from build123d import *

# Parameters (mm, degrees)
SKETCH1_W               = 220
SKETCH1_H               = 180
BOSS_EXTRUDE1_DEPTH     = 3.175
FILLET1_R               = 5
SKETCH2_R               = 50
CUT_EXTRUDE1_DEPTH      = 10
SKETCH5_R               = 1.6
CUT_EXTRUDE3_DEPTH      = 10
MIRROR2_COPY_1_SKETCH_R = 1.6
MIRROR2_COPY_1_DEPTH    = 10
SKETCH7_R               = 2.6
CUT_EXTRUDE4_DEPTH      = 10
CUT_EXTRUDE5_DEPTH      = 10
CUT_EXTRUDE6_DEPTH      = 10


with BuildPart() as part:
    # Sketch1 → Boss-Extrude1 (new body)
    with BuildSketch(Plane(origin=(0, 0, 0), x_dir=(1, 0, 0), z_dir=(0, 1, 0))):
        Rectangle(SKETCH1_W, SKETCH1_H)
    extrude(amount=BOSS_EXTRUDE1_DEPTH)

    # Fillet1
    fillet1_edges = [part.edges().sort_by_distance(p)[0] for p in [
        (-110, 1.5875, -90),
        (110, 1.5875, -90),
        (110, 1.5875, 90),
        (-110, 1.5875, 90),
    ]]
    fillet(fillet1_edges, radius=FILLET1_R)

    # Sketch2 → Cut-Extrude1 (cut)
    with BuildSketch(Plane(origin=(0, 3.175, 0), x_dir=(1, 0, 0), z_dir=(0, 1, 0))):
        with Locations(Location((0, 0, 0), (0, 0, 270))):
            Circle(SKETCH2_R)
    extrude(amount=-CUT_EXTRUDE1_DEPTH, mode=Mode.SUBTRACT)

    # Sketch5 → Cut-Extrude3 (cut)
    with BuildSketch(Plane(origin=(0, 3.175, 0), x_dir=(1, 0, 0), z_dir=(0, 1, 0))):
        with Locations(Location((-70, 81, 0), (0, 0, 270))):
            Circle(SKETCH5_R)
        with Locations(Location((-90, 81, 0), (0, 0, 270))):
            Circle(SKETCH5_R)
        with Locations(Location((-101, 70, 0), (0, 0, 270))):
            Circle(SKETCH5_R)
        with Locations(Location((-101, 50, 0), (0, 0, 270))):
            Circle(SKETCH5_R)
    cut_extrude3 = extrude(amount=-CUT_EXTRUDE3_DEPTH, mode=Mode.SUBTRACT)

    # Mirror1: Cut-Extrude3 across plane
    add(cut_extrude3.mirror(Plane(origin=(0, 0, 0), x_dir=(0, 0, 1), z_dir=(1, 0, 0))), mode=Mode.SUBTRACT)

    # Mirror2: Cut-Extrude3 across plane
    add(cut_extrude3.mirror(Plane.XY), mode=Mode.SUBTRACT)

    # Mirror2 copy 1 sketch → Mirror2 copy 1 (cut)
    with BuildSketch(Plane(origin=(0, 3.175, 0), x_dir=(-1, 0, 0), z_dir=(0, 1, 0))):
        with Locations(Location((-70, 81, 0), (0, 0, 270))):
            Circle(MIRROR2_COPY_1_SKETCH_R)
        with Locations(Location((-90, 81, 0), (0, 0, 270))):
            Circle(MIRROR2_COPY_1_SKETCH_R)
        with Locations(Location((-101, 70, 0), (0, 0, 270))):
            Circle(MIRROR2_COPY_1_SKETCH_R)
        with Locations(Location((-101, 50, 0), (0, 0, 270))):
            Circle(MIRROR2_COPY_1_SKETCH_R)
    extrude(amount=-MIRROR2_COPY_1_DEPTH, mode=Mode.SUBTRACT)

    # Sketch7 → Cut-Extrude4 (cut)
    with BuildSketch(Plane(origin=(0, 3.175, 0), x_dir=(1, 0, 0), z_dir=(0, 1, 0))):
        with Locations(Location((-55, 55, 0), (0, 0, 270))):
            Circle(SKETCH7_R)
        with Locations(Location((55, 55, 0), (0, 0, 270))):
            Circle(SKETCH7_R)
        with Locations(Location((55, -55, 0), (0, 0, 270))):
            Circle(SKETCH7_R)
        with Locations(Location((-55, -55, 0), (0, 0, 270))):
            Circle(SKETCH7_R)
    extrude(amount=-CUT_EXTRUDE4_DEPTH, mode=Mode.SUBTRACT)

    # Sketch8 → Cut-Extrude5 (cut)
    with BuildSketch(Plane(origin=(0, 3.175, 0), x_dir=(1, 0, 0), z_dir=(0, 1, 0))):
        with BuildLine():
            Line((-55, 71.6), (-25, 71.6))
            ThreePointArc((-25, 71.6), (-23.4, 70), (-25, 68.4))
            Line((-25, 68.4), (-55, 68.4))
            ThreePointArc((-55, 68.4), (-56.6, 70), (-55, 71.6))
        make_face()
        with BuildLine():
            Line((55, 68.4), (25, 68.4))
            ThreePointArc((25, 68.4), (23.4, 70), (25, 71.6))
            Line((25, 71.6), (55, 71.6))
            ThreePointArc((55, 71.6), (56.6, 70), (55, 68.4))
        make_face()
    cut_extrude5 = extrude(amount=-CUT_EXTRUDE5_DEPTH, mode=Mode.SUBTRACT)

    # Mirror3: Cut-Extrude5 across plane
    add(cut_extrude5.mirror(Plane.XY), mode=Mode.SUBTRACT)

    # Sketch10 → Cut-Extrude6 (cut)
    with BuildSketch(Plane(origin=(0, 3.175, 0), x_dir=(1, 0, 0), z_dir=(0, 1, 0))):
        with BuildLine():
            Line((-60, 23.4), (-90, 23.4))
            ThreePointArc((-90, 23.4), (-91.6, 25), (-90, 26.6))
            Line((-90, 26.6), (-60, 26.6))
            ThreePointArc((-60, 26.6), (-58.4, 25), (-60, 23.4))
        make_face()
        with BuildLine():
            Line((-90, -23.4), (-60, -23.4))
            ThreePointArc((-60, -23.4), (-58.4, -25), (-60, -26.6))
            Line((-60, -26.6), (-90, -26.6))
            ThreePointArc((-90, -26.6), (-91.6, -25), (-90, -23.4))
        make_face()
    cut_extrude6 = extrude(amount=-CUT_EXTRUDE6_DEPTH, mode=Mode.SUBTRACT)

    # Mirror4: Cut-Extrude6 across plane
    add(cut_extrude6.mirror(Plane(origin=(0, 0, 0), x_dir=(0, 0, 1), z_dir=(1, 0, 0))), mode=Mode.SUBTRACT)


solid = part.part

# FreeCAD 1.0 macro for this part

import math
import FreeCAD as App
import Part
import Sketcher

V = App.Vector


def edges_at(feature, points):
    """Names of the edges that pass closest to the given points."""
    edges = feature.Shape.Edges
    near = lambda p: min(range(len(edges)), key=lambda i: edges[i].distToShape(Part.Vertex(*p))[0])
    return sorted({f"Edge{near(p) + 1}" for p in points})

doc = App.newDocument("Part")
body = doc.addObject("PartDesign::Body", "Body")

# Sketch on XZ plane
sketch1 = doc.addObject("Sketcher::SketchObject", "Sketch")
body.addObject(sketch1)
sketch1.AttachmentSupport = (doc.XZ_Plane, [""])
sketch1.MapMode = "FlatFace"
sketch1.addGeometry(Part.LineSegment(V(-110, -90, 0), V(-110, 90, 0)), False)
sketch1.addGeometry(Part.LineSegment(V(-110, 90, 0), V(110, 90, 0)), False)
sketch1.addGeometry(Part.LineSegment(V(110, 90, 0), V(110, -90, 0)), False)
sketch1.addGeometry(Part.LineSegment(V(110, -90, 0), V(-110, -90, 0)), False)
sketch1.addConstraint(Sketcher.Constraint("Coincident", 0, 2, 1, 1))
sketch1.addConstraint(Sketcher.Constraint("Coincident", 1, 2, 2, 1))
sketch1.addConstraint(Sketcher.Constraint("Coincident", 2, 2, 3, 1))
sketch1.addConstraint(Sketcher.Constraint("Coincident", 3, 2, 0, 1))
sketch1.addConstraint(Sketcher.Constraint("Vertical", 0))
sketch1.addConstraint(Sketcher.Constraint("Horizontal", 1))
sketch1.addConstraint(Sketcher.Constraint("Vertical", 2))
sketch1.addConstraint(Sketcher.Constraint("Horizontal", 3))
sketch1.addConstraint(Sketcher.Constraint("Symmetric", 0, 2, 2, 2, -1, 1))
sketch1.addConstraint(Sketcher.Constraint("DistanceX", 1, 1, 1, 2, 220.0))
sketch1.addConstraint(Sketcher.Constraint("DistanceY", 0, 1, 0, 2, 180.0))
pad1 = doc.addObject("PartDesign::Pad", "Pad")
body.addObject(pad1)
pad1.Profile = sketch1
pad1.Length = 3.175
pad1.Reversed = True
doc.recompute()

fillet = doc.addObject("PartDesign::Fillet", "Fillet")
body.addObject(fillet)
fillet.Base = (pad1, edges_at(pad1, [
    (-110, 1.587, -90),
    (110, 1.587, -90),
    (110, 1.587, 90),
    (-110, 1.587, 90),
]))
fillet.Radius = 5

# Sketch on XZ plane
sketch2 = doc.addObject("Sketcher::SketchObject", "Sketch001")
body.addObject(sketch2)
sketch2.AttachmentSupport = (doc.XZ_Plane, [""])
sketch2.MapMode = "FlatFace"
sketch2.AttachmentOffset = App.Placement(V(0, 0, -3.175), App.Rotation())
sketch2.addGeometry(Part.Circle(V(0, 0, 0), V(0, 0, 1), 50), False)
sketch2.addConstraint(Sketcher.Constraint("Coincident", 0, 3, -1, 1))
sketch2.addConstraint(Sketcher.Constraint("Diameter", 0, 100.0))
pocket1 = doc.addObject("PartDesign::Pocket", "Pocket")
body.addObject(pocket1)
pocket1.Profile = sketch2
pocket1.Length = 10
pocket1.Reversed = True

# Sketch on XZ plane
sketch3 = doc.addObject("Sketcher::SketchObject", "Sketch002")
body.addObject(sketch3)
sketch3.AttachmentSupport = (doc.XZ_Plane, [""])
sketch3.MapMode = "FlatFace"
sketch3.AttachmentOffset = App.Placement(V(0, 0, -3.175), App.Rotation())
sketch3.addGeometry(Part.Circle(V(-70, -81, 0), V(0, 0, 1), 1.6), False)
sketch3.addGeometry(Part.Circle(V(-90, -81, 0), V(0, 0, 1), 1.6), False)
sketch3.addGeometry(Part.Circle(V(-101, -70, 0), V(0, 0, 1), 1.6), False)
sketch3.addGeometry(Part.Circle(V(-101, -50, 0), V(0, 0, 1), 1.6), False)
sketch3.addConstraint(Sketcher.Constraint("Equal", 0, 1))
sketch3.addConstraint(Sketcher.Constraint("Equal", 1, 2))
sketch3.addConstraint(Sketcher.Constraint("Equal", 2, 3))
sketch3.addConstraint(Sketcher.Constraint("Horizontal", 0, 3, 1, 3))
sketch3.addConstraint(Sketcher.Constraint("Vertical", 2, 3, 3, 3))
sketch3.addConstraint(Sketcher.Constraint("Diameter", 0, 3.2))
sketch3.addConstraint(Sketcher.Constraint("DistanceX", 0, 3, -1, 1, 70.0))
sketch3.addConstraint(Sketcher.Constraint("DistanceY", 0, 3, -1, 1, 81.0))
sketch3.addConstraint(Sketcher.Constraint("DistanceX", 1, 3, -1, 1, 90.0))
sketch3.addConstraint(Sketcher.Constraint("DistanceX", 2, 3, -1, 1, 101.0))
sketch3.addConstraint(Sketcher.Constraint("DistanceY", 2, 3, -1, 1, 70.0))
sketch3.addConstraint(Sketcher.Constraint("DistanceY", 3, 3, -1, 1, 50.0))
pocket2 = doc.addObject("PartDesign::Pocket", "Pocket001")
body.addObject(pocket2)
pocket2.Profile = sketch3
pocket2.Length = 10
pocket2.Reversed = True
doc.recompute()

mirrored = doc.addObject("PartDesign::Mirrored", "Mirrored")
body.addObject(mirrored)
mirrored.Originals = [pocket2]
mirrored.MirrorPlane = (doc.YZ_Plane, [""])
body.Tip = mirrored
doc.recompute()

mirrored2 = doc.addObject("PartDesign::Mirrored", "Mirrored001")
body.addObject(mirrored2)
mirrored2.Originals = [pocket2]
mirrored2.MirrorPlane = (doc.XY_Plane, [""])
body.Tip = mirrored2

# Sketch on XZ plane
sketch4 = doc.addObject("Sketcher::SketchObject", "Sketch003")
body.addObject(sketch4)
sketch4.AttachmentSupport = (doc.XZ_Plane, [""])
sketch4.MapMode = "FlatFace"
sketch4.AttachmentOffset = App.Placement(V(0, 0, -3.175), App.Rotation())
sketch4.addGeometry(Part.Circle(V(70, 81, 0), V(0, 0, 1), 1.6), False)
sketch4.addGeometry(Part.Circle(V(90, 81, 0), V(0, 0, 1), 1.6), False)
sketch4.addGeometry(Part.Circle(V(101, 70, 0), V(0, 0, 1), 1.6), False)
sketch4.addGeometry(Part.Circle(V(101, 50, 0), V(0, 0, 1), 1.6), False)
sketch4.addConstraint(Sketcher.Constraint("Equal", 0, 1))
sketch4.addConstraint(Sketcher.Constraint("Equal", 1, 2))
sketch4.addConstraint(Sketcher.Constraint("Equal", 2, 3))
sketch4.addConstraint(Sketcher.Constraint("Horizontal", 0, 3, 1, 3))
sketch4.addConstraint(Sketcher.Constraint("Vertical", 2, 3, 3, 3))
sketch4.addConstraint(Sketcher.Constraint("Diameter", 0, 3.2))
sketch4.addConstraint(Sketcher.Constraint("DistanceX", -1, 1, 0, 3, 70.0))
sketch4.addConstraint(Sketcher.Constraint("DistanceY", -1, 1, 0, 3, 81.0))
sketch4.addConstraint(Sketcher.Constraint("DistanceX", -1, 1, 1, 3, 90.0))
sketch4.addConstraint(Sketcher.Constraint("DistanceX", -1, 1, 2, 3, 101.0))
sketch4.addConstraint(Sketcher.Constraint("DistanceY", -1, 1, 2, 3, 70.0))
sketch4.addConstraint(Sketcher.Constraint("DistanceY", -1, 1, 3, 3, 50.0))
pocket3 = doc.addObject("PartDesign::Pocket", "Pocket002")
body.addObject(pocket3)
pocket3.Profile = sketch4
pocket3.Length = 10
pocket3.Reversed = True

# Sketch on XZ plane
sketch5 = doc.addObject("Sketcher::SketchObject", "Sketch004")
body.addObject(sketch5)
sketch5.AttachmentSupport = (doc.XZ_Plane, [""])
sketch5.MapMode = "FlatFace"
sketch5.AttachmentOffset = App.Placement(V(0, 0, -3.175), App.Rotation())
sketch5.addGeometry(Part.Circle(V(-55, -55, 0), V(0, 0, 1), 2.6), False)
sketch5.addGeometry(Part.Circle(V(55, -55, 0), V(0, 0, 1), 2.6), False)
sketch5.addGeometry(Part.Circle(V(55, 55, 0), V(0, 0, 1), 2.6), False)
sketch5.addGeometry(Part.Circle(V(-55, 55, 0), V(0, 0, 1), 2.6), False)
sketch5.addConstraint(Sketcher.Constraint("Equal", 0, 1))
sketch5.addConstraint(Sketcher.Constraint("Equal", 1, 2))
sketch5.addConstraint(Sketcher.Constraint("Equal", 2, 3))
sketch5.addConstraint(Sketcher.Constraint("Symmetric", 0, 3, 2, 3, -1, 1))
sketch5.addConstraint(Sketcher.Constraint("Symmetric", 1, 3, 3, 3, -1, 1))
sketch5.addConstraint(Sketcher.Constraint("Symmetric", 0, 3, 1, 3, -2))
sketch5.addConstraint(Sketcher.Constraint("Diameter", 0, 5.2))
sketch5.addConstraint(Sketcher.Constraint("DistanceX", 0, 3, -1, 1, 55.0))
sketch5.addConstraint(Sketcher.Constraint("DistanceY", 0, 3, -1, 1, 55.0))
pocket4 = doc.addObject("PartDesign::Pocket", "Pocket003")
body.addObject(pocket4)
pocket4.Profile = sketch5
pocket4.Length = 10
pocket4.Reversed = True

# Sketch on XZ plane
sketch6 = doc.addObject("Sketcher::SketchObject", "Sketch005")
body.addObject(sketch6)
sketch6.AttachmentSupport = (doc.XZ_Plane, [""])
sketch6.MapMode = "FlatFace"
sketch6.AttachmentOffset = App.Placement(V(0, 0, -3.175), App.Rotation())
sketch6.addGeometry(Part.LineSegment(V(-25, -71.6, 0), V(-55, -71.6, 0)), False)
sketch6.addGeometry(Part.ArcOfCircle(Part.Circle(V(-55, -70, 0), V(0, 0, 1), 1.6), math.radians(90), math.radians(270)), False)
sketch6.addGeometry(Part.LineSegment(V(-55, -68.4, 0), V(-25, -68.4, 0)), False)
sketch6.addGeometry(Part.ArcOfCircle(Part.Circle(V(-25, -70, 0), V(0, 0, 1), 1.6), math.radians(-90), math.radians(90)), False)
sketch6.addGeometry(Part.LineSegment(V(25, -68.4, 0), V(55, -68.4, 0)), False)
sketch6.addGeometry(Part.ArcOfCircle(Part.Circle(V(55, -70, 0), V(0, 0, 1), 1.6), math.radians(-90), math.radians(90)), False)
sketch6.addGeometry(Part.LineSegment(V(55, -71.6, 0), V(25, -71.6, 0)), False)
sketch6.addGeometry(Part.ArcOfCircle(Part.Circle(V(25, -70, 0), V(0, 0, 1), 1.6), math.radians(90), math.radians(270)), False)
sketch6.addConstraint(Sketcher.Constraint("Tangent", 0, 2, 1, 2))
sketch6.addConstraint(Sketcher.Constraint("Tangent", 1, 1, 2, 1))
sketch6.addConstraint(Sketcher.Constraint("Tangent", 2, 2, 3, 2))
sketch6.addConstraint(Sketcher.Constraint("Tangent", 3, 1, 0, 1))
sketch6.addConstraint(Sketcher.Constraint("Tangent", 4, 2, 5, 2))
sketch6.addConstraint(Sketcher.Constraint("Tangent", 5, 1, 6, 1))
sketch6.addConstraint(Sketcher.Constraint("Tangent", 6, 2, 7, 2))
sketch6.addConstraint(Sketcher.Constraint("Tangent", 7, 1, 4, 1))
sketch6.addConstraint(Sketcher.Constraint("Horizontal", 0))
sketch6.addConstraint(Sketcher.Constraint("Horizontal", 2))
sketch6.addConstraint(Sketcher.Constraint("Horizontal", 4))
sketch6.addConstraint(Sketcher.Constraint("Horizontal", 6))
sketch6.addConstraint(Sketcher.Constraint("Equal", 3, 5))
sketch6.addConstraint(Sketcher.Constraint("Symmetric", 1, 3, 5, 3, -2))
sketch6.addConstraint(Sketcher.Constraint("Equal", 2, 4))
sketch6.addConstraint(Sketcher.Constraint("Radius", 1, 1.6))
sketch6.addConstraint(Sketcher.Constraint("DistanceX", 0, 2, 0, 1, 30.0))
sketch6.addConstraint(Sketcher.Constraint("DistanceX", 1, 3, -1, 1, 55.0))
sketch6.addConstraint(Sketcher.Constraint("DistanceY", 1, 3, -1, 1, 70.0))
pocket5 = doc.addObject("PartDesign::Pocket", "Pocket004")
body.addObject(pocket5)
pocket5.Profile = sketch6
pocket5.Length = 10
pocket5.Reversed = True
doc.recompute()

mirrored3 = doc.addObject("PartDesign::Mirrored", "Mirrored002")
body.addObject(mirrored3)
mirrored3.Originals = [pocket5]
mirrored3.MirrorPlane = (doc.XY_Plane, [""])
body.Tip = mirrored3

# Sketch on XZ plane
sketch7 = doc.addObject("Sketcher::SketchObject", "Sketch006")
body.addObject(sketch7)
sketch7.AttachmentSupport = (doc.XZ_Plane, [""])
sketch7.MapMode = "FlatFace"
sketch7.AttachmentOffset = App.Placement(V(0, 0, -3.175), App.Rotation())
sketch7.addGeometry(Part.LineSegment(V(-90, -23.4, 0), V(-60, -23.4, 0)), False)
sketch7.addGeometry(Part.ArcOfCircle(Part.Circle(V(-60, -25, 0), V(0, 0, 1), 1.6), math.radians(-90), math.radians(90)), False)
sketch7.addGeometry(Part.LineSegment(V(-60, -26.6, 0), V(-90, -26.6, 0)), False)
sketch7.addGeometry(Part.ArcOfCircle(Part.Circle(V(-90, -25, 0), V(0, 0, 1), 1.6), math.radians(90), math.radians(270)), False)
sketch7.addGeometry(Part.LineSegment(V(-60, 23.4, 0), V(-90, 23.4, 0)), False)
sketch7.addGeometry(Part.ArcOfCircle(Part.Circle(V(-90, 25, 0), V(0, 0, 1), 1.6), math.radians(90), math.radians(270)), False)
sketch7.addGeometry(Part.LineSegment(V(-90, 26.6, 0), V(-60, 26.6, 0)), False)
sketch7.addGeometry(Part.ArcOfCircle(Part.Circle(V(-60, 25, 0), V(0, 0, 1), 1.6), math.radians(-90), math.radians(90)), False)
sketch7.addConstraint(Sketcher.Constraint("Tangent", 0, 2, 1, 2))
sketch7.addConstraint(Sketcher.Constraint("Tangent", 1, 1, 2, 1))
sketch7.addConstraint(Sketcher.Constraint("Tangent", 2, 2, 3, 2))
sketch7.addConstraint(Sketcher.Constraint("Tangent", 3, 1, 0, 1))
sketch7.addConstraint(Sketcher.Constraint("Tangent", 4, 2, 5, 2))
sketch7.addConstraint(Sketcher.Constraint("Tangent", 5, 1, 6, 1))
sketch7.addConstraint(Sketcher.Constraint("Tangent", 6, 2, 7, 2))
sketch7.addConstraint(Sketcher.Constraint("Tangent", 7, 1, 4, 1))
sketch7.addConstraint(Sketcher.Constraint("Horizontal", 0))
sketch7.addConstraint(Sketcher.Constraint("Horizontal", 2))
sketch7.addConstraint(Sketcher.Constraint("Horizontal", 4))
sketch7.addConstraint(Sketcher.Constraint("Horizontal", 6))
sketch7.addConstraint(Sketcher.Constraint("Equal", 3, 5))
sketch7.addConstraint(Sketcher.Constraint("Symmetric", 3, 3, 5, 3, -1))
sketch7.addConstraint(Sketcher.Constraint("Vertical", 1, 3, 7, 3))
sketch7.addConstraint(Sketcher.Constraint("Radius", 1, 1.6))
sketch7.addConstraint(Sketcher.Constraint("DistanceX", 0, 1, 0, 2, 30.0))
sketch7.addConstraint(Sketcher.Constraint("DistanceX", 1, 3, -1, 1, 60.0))
sketch7.addConstraint(Sketcher.Constraint("DistanceY", 1, 3, -1, 1, 25.0))
pocket6 = doc.addObject("PartDesign::Pocket", "Pocket005")
body.addObject(pocket6)
pocket6.Profile = sketch7
pocket6.Length = 10
pocket6.Reversed = True
doc.recompute()

mirrored4 = doc.addObject("PartDesign::Mirrored", "Mirrored003")
body.addObject(mirrored4)
mirrored4.Originals = [pocket6]
mirrored4.MirrorPlane = (doc.YZ_Plane, [""])
body.Tip = mirrored4

doc.recompute()
